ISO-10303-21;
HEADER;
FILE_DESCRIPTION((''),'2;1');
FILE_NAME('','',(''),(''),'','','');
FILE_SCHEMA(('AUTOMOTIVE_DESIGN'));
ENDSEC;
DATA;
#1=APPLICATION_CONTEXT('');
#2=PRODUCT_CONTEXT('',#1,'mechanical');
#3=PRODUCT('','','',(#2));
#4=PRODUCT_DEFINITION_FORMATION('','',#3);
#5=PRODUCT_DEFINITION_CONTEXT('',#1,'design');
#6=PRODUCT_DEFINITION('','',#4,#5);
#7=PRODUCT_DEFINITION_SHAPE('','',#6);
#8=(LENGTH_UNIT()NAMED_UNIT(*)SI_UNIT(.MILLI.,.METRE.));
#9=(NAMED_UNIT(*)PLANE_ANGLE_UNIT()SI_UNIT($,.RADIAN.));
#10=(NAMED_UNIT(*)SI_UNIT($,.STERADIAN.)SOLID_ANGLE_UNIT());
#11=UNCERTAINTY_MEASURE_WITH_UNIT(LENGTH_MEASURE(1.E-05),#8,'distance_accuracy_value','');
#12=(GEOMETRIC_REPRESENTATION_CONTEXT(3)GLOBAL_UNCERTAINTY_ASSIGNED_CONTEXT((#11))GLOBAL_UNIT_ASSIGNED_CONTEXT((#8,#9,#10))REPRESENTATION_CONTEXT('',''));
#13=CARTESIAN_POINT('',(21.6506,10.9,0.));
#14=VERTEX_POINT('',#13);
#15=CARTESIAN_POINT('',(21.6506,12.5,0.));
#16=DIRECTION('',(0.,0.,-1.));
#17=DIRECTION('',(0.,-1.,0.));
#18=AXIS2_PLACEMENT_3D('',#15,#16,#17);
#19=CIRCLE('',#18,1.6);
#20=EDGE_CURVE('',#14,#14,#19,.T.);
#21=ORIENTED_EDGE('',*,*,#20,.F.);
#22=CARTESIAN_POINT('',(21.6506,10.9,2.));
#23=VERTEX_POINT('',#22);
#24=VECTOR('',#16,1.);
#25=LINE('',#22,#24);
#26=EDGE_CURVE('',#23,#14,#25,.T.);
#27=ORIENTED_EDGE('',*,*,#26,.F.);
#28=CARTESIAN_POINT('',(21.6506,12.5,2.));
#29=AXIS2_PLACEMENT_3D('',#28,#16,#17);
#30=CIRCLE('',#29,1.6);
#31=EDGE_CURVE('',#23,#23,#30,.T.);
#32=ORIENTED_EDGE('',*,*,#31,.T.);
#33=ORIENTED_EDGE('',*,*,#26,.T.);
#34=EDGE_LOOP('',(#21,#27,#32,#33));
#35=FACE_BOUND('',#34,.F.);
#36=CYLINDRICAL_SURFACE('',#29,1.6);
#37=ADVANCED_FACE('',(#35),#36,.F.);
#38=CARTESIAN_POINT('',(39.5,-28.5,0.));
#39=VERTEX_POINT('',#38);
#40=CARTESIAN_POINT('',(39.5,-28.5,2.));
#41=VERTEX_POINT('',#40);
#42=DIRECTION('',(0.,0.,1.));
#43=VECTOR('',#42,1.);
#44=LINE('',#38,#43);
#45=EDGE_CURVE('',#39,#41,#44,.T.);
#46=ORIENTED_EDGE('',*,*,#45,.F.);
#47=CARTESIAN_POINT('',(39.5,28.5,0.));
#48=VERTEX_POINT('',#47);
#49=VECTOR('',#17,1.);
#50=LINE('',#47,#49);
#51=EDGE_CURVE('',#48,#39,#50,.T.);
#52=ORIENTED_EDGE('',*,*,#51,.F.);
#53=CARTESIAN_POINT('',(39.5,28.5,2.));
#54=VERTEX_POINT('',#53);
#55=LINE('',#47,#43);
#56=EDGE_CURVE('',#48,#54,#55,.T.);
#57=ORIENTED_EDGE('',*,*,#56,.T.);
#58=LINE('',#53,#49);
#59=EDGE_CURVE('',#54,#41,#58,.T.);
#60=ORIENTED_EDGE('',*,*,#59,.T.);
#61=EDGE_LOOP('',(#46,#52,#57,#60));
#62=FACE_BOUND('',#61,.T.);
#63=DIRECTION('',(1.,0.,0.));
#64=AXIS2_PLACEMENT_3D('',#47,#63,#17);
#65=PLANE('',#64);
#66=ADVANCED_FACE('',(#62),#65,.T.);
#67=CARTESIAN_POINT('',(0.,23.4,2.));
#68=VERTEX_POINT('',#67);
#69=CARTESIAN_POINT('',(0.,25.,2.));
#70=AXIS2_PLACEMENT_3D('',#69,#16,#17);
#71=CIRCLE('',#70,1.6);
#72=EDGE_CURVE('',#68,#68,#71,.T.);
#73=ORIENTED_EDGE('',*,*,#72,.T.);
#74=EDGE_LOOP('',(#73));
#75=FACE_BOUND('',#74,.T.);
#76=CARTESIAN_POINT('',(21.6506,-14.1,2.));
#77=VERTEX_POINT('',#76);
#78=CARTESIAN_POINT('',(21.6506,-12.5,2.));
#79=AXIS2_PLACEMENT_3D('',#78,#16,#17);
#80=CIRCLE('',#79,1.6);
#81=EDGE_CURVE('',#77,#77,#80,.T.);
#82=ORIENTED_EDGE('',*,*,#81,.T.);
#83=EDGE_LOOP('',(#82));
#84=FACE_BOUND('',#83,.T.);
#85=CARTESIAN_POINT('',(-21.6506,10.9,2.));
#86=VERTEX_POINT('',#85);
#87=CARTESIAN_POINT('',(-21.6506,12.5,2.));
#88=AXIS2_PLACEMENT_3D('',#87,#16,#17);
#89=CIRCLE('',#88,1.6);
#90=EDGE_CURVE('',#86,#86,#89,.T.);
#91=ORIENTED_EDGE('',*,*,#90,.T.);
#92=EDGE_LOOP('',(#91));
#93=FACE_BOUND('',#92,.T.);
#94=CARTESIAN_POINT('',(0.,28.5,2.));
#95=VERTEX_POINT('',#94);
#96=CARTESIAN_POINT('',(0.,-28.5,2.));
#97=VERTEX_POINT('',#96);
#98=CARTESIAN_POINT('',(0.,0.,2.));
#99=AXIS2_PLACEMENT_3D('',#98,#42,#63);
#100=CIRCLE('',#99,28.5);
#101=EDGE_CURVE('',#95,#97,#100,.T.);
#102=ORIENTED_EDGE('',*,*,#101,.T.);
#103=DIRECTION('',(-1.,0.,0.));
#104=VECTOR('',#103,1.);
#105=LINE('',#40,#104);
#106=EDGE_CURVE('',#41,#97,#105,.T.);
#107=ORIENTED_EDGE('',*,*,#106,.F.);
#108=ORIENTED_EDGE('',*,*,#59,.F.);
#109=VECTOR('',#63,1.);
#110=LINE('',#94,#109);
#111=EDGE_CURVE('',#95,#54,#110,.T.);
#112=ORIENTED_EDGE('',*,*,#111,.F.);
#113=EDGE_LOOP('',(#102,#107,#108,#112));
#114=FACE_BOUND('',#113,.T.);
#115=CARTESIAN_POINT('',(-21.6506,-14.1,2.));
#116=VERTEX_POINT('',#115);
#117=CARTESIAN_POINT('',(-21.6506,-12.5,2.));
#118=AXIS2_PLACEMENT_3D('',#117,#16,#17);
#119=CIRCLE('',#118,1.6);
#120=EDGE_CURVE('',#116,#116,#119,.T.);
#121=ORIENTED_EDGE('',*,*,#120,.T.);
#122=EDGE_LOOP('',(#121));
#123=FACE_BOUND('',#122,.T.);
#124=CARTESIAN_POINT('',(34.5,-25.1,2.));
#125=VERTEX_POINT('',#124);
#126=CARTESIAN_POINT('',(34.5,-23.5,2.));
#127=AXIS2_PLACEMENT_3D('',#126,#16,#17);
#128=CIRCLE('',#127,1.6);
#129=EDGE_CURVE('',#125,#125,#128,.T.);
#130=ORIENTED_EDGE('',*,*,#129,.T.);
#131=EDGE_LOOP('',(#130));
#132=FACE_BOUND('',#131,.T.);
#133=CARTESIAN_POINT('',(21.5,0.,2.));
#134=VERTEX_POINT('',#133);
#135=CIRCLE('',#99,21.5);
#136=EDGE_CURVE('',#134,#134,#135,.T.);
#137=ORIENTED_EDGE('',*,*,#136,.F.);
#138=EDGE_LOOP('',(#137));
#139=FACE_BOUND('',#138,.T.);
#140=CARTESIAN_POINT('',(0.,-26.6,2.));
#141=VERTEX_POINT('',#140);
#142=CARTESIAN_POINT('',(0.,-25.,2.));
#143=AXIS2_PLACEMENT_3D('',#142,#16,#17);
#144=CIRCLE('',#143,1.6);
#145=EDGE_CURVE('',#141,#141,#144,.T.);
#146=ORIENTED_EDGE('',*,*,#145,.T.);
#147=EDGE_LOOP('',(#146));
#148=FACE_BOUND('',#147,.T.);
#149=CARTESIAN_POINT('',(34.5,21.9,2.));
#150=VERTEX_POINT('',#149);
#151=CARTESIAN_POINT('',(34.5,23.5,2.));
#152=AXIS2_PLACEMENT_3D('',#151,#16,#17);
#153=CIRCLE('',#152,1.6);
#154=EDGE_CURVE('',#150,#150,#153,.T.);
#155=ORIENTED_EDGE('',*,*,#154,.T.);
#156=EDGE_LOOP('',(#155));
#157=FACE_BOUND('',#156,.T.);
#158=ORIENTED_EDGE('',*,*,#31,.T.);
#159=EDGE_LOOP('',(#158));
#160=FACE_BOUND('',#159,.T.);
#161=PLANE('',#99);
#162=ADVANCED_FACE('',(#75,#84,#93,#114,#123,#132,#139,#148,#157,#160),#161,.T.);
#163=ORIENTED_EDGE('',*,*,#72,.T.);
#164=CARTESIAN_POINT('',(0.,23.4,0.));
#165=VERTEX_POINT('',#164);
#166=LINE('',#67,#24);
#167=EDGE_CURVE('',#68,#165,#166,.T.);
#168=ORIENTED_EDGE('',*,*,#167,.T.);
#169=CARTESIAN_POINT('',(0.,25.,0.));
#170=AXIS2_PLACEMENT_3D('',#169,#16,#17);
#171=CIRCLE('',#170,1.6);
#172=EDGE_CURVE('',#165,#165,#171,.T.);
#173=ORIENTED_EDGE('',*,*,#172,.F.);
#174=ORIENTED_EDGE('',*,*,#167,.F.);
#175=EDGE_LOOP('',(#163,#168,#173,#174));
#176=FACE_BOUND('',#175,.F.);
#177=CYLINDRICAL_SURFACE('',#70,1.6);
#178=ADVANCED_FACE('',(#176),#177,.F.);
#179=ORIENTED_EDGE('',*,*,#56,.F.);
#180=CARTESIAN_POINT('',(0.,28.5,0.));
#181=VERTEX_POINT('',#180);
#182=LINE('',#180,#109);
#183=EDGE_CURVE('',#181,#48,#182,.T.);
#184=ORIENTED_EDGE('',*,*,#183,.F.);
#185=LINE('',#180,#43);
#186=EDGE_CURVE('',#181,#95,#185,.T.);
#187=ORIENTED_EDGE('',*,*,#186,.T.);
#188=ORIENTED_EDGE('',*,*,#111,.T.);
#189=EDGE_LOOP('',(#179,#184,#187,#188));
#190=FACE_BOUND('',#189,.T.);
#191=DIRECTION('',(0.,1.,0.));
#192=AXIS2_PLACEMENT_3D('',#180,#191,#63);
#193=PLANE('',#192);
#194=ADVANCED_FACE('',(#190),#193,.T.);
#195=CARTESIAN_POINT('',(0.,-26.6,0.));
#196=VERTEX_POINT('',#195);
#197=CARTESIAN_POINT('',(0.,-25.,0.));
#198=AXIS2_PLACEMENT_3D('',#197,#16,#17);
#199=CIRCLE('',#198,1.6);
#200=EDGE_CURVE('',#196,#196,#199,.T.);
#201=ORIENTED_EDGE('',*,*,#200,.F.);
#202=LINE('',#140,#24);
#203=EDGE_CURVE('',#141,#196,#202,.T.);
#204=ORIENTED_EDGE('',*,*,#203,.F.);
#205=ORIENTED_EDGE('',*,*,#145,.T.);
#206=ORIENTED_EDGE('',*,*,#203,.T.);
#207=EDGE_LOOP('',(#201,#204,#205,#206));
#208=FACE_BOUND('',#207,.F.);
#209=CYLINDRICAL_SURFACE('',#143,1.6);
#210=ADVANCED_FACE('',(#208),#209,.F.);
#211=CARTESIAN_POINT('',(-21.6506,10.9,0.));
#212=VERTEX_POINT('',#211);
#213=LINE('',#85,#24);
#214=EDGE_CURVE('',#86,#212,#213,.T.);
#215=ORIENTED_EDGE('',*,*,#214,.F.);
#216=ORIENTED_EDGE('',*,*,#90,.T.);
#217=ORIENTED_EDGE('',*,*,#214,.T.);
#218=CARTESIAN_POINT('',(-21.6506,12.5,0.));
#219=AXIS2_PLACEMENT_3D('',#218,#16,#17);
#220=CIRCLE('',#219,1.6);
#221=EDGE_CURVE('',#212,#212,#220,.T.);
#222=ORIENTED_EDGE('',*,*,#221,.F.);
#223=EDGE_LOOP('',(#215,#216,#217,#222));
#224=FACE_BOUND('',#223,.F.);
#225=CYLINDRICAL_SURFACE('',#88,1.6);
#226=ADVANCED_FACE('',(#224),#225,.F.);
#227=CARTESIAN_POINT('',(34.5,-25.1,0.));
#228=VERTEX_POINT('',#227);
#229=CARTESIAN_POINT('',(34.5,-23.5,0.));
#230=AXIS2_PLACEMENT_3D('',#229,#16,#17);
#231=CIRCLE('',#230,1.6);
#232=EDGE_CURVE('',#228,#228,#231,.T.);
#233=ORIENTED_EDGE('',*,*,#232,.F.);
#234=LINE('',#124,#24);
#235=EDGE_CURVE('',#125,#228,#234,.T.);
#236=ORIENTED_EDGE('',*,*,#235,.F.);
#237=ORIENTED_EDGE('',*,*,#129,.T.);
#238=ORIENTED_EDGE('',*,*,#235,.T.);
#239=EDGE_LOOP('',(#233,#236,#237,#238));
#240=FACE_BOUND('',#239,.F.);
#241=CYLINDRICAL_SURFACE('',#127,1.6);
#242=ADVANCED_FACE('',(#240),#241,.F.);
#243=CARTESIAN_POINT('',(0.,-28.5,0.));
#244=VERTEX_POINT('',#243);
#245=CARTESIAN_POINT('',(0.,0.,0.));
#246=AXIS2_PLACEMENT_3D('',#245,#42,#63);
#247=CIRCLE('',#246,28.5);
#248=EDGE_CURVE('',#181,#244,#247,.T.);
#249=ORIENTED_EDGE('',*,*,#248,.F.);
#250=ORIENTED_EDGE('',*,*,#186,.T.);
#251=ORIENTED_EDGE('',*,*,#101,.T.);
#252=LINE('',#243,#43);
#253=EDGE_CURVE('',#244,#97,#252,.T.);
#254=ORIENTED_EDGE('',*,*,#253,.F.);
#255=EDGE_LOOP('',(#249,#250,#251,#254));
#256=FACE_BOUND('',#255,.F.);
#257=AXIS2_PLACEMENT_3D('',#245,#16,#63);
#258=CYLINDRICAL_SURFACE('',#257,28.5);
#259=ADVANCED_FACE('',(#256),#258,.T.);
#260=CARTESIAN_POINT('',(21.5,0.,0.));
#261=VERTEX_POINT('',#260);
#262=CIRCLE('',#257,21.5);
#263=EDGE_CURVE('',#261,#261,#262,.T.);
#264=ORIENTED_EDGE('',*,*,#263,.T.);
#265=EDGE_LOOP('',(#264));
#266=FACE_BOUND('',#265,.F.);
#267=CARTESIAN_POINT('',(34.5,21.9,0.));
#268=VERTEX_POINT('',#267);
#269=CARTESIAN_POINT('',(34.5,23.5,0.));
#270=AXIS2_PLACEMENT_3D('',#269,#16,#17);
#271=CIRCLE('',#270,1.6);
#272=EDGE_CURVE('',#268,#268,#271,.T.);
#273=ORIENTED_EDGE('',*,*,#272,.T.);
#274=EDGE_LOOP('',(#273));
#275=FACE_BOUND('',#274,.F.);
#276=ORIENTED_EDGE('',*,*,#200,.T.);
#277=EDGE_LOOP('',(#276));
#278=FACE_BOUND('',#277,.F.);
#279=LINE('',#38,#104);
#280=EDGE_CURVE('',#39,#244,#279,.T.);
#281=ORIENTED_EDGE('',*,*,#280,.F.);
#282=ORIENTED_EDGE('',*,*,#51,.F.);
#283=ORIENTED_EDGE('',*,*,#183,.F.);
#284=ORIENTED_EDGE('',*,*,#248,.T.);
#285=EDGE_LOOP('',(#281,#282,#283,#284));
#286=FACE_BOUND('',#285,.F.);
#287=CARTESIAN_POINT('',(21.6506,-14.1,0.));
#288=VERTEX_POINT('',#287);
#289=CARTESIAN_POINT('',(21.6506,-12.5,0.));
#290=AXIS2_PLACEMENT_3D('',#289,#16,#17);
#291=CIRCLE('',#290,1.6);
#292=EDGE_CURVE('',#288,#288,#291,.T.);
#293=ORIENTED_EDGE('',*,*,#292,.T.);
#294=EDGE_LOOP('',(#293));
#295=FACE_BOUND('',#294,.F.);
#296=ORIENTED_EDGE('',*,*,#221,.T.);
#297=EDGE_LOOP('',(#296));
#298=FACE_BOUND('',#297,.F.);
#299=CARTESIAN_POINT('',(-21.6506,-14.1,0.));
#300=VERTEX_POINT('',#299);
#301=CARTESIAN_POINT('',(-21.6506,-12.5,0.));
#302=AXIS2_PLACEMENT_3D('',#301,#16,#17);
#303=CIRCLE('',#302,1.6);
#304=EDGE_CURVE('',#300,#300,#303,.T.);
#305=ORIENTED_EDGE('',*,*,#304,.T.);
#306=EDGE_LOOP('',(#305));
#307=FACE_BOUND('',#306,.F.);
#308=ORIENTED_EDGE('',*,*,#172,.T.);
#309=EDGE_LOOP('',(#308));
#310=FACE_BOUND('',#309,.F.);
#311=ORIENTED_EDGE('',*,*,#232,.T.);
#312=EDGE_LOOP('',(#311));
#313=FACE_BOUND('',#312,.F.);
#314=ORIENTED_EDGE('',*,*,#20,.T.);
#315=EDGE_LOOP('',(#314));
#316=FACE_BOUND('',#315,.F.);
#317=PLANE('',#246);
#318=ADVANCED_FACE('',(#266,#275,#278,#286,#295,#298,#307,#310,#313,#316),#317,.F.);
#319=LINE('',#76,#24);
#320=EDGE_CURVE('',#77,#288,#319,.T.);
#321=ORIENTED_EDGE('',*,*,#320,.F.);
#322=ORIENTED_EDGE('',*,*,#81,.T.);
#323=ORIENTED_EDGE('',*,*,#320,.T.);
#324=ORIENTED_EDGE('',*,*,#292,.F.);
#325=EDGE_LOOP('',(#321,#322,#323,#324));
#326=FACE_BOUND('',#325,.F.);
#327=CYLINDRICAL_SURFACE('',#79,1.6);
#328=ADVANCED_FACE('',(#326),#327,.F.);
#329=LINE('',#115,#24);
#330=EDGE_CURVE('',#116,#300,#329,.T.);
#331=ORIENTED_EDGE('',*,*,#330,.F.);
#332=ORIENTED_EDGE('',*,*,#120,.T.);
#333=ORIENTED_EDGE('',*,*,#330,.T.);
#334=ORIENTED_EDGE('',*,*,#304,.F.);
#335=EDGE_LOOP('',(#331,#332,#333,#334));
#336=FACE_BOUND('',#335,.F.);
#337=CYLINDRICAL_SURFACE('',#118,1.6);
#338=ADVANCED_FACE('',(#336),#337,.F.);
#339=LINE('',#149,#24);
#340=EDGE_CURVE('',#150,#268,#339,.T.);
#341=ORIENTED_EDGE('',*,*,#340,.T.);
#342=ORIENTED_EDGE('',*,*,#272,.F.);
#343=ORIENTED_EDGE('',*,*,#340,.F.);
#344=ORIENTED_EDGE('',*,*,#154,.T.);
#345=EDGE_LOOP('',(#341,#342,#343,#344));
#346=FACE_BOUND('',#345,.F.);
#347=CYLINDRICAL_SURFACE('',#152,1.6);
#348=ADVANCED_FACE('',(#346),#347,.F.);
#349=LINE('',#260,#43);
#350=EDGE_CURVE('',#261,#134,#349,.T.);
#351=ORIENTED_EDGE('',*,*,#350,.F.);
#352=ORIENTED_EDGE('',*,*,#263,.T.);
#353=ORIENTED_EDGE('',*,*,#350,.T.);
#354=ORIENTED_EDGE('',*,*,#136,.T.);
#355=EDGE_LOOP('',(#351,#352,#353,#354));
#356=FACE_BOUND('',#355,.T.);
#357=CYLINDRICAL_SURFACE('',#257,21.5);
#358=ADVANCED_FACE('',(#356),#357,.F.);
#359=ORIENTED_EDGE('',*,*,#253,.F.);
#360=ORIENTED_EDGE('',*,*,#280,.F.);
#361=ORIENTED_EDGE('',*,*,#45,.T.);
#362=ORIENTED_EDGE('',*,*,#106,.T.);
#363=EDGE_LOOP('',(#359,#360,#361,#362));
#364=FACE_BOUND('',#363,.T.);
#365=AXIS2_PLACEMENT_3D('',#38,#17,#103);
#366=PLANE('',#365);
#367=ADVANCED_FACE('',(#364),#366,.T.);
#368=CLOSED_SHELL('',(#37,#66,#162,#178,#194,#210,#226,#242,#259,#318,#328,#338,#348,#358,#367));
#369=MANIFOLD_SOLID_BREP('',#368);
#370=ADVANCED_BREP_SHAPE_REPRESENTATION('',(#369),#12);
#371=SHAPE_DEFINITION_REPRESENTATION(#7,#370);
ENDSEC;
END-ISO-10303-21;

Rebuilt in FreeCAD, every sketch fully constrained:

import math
import FreeCAD as App
import Part
import Sketcher
from FreeCAD import Vector
Q = App.Units.Quantity

doc = App.newDocument("Part")
body = doc.addObject("PartDesign::Body", "Body")

sketch1 = body.newObject("Sketcher::SketchObject", "Sketch")
sketch1.AttachmentSupport = (doc.getObject("XY_Plane"), [""])
sketch1.MapMode = "FlatFace"
sketch1.addGeometry([
    Part.LineSegment(Vector(0, -28, 0), Vector(40, -28, 0)),
    Part.LineSegment(Vector(40, -28, 0), Vector(40, 28, 0)),
    Part.LineSegment(Vector(40, 28, 0), Vector(0, 28, 0)),
    Part.ArcOfCircle(Part.Circle(Vector(0, 0, 0), Vector(0, 0, 1), 28), math.radians(90), math.radians(270)),
    Part.Circle(Vector(0, 0, 0), Vector(0, 0, 1), 22),
], False)
sketch1.addConstraint([
    Sketcher.Constraint("Coincident", 0, 2, 1, 1),
    Sketcher.Constraint("Coincident", 1, 2, 2, 1),
    Sketcher.Constraint("Tangent", 2, 2, 3, 1),
    Sketcher.Constraint("Tangent", 3, 2, 0, 1),
    Sketcher.Constraint("Horizontal", 0),
    Sketcher.Constraint("Vertical", 1),
    Sketcher.Constraint("Horizontal", 2),
    Sketcher.Constraint("Coincident", 3, 3, -1, 1),
    Sketcher.Constraint("Coincident", 4, 3, -1, 1),
    Sketcher.Constraint("Diameter", 4, Q("43 mm")),
    Sketcher.Constraint("Radius", 3, Q("28.5 mm")),
    Sketcher.Constraint("DistanceX", 0, 1, 0, 2, Q("39.5 mm")),
])
pad1 = body.newObject("PartDesign::Pad", "Pad")
pad1.Profile = sketch1
pad1.Length = 2

sketch2 = body.newObject("Sketcher::SketchObject", "Sketch001")
sketch2.AttachmentSupport = (doc.getObject("XY_Plane"), [""])
sketch2.MapMode = "FlatFace"
sketch2.AttachmentOffset = App.Placement(Vector(0, 0, 2), App.Rotation())
sketch2.addGeometry([
    Part.Circle(Vector(34.5, 23.5, 0), Vector(0, 0, 1), 1.6),
    Part.Circle(Vector(34.5, -23.5, 0), Vector(0, 0, 1), 1.6),
    Part.Circle(Vector(21.7, -12.5, 0), Vector(0, 0, 1), 1.6),
    Part.Circle(Vector(21.7, 12.5, 0), Vector(0, 0, 1), 1.6),
    Part.Circle(Vector(0, 25, 0), Vector(0, 0, 1), 1.6),
    Part.Circle(Vector(-21.7, 12.5, 0), Vector(0, 0, 1), 1.6),
    Part.Circle(Vector(-21.7, -12.5, 0), Vector(0, 0, 1), 1.6),
    Part.Circle(Vector(0, -25, 0), Vector(0, 0, 1), 1.6),
], False)
sketch2.addConstraint([
    Sketcher.Constraint("Equal", 0, 1),
    Sketcher.Constraint("Equal", 1, 2),
    Sketcher.Constraint("Equal", 2, 3),
    Sketcher.Constraint("Equal", 3, 4),
    Sketcher.Constraint("Equal", 4, 5),
    Sketcher.Constraint("Equal", 5, 6),
    Sketcher.Constraint("Equal", 6, 7),
    Sketcher.Constraint("Symmetric", 2, 3, 5, 3, -1, 1),
    Sketcher.Constraint("Symmetric", 3, 3, 6, 3, -1, 1),
    Sketcher.Constraint("Symmetric", 4, 3, 7, 3, -1, 1),
    Sketcher.Constraint("Symmetric", 3, 3, 5, 3, -2),
    Sketcher.Constraint("Symmetric", 0, 3, 1, 3, -1),
    Sketcher.Constraint("PointOnObject", 4, 3, -2),
    Sketcher.Constraint("Diameter", 0, Q("3.2 mm")),
    Sketcher.Constraint("DistanceY", -1, 1, 4, 3, Q("25 mm")),
    Sketcher.Constraint("DistanceY", 1, 3, 0, 3, Q("47 mm")),
    Sketcher.Constraint("DistanceY", 1, 3, 2, 3, Q("11 mm")),
    Sketcher.Constraint("DistanceX", -1, 1, 0, 3, Q("34.5 mm")),
    Sketcher.Constraint("DistanceX", -1, 1, 2, 3, Q("21.6506 mm")),
])
doc.recompute()
hole = body.newObject("PartDesign::Hole", "Hole")
hole.Profile = sketch2
hole.ThreadType = "None"
hole.Diameter = 3.2
hole.DepthType = "ThroughAll"

doc.recompute()
